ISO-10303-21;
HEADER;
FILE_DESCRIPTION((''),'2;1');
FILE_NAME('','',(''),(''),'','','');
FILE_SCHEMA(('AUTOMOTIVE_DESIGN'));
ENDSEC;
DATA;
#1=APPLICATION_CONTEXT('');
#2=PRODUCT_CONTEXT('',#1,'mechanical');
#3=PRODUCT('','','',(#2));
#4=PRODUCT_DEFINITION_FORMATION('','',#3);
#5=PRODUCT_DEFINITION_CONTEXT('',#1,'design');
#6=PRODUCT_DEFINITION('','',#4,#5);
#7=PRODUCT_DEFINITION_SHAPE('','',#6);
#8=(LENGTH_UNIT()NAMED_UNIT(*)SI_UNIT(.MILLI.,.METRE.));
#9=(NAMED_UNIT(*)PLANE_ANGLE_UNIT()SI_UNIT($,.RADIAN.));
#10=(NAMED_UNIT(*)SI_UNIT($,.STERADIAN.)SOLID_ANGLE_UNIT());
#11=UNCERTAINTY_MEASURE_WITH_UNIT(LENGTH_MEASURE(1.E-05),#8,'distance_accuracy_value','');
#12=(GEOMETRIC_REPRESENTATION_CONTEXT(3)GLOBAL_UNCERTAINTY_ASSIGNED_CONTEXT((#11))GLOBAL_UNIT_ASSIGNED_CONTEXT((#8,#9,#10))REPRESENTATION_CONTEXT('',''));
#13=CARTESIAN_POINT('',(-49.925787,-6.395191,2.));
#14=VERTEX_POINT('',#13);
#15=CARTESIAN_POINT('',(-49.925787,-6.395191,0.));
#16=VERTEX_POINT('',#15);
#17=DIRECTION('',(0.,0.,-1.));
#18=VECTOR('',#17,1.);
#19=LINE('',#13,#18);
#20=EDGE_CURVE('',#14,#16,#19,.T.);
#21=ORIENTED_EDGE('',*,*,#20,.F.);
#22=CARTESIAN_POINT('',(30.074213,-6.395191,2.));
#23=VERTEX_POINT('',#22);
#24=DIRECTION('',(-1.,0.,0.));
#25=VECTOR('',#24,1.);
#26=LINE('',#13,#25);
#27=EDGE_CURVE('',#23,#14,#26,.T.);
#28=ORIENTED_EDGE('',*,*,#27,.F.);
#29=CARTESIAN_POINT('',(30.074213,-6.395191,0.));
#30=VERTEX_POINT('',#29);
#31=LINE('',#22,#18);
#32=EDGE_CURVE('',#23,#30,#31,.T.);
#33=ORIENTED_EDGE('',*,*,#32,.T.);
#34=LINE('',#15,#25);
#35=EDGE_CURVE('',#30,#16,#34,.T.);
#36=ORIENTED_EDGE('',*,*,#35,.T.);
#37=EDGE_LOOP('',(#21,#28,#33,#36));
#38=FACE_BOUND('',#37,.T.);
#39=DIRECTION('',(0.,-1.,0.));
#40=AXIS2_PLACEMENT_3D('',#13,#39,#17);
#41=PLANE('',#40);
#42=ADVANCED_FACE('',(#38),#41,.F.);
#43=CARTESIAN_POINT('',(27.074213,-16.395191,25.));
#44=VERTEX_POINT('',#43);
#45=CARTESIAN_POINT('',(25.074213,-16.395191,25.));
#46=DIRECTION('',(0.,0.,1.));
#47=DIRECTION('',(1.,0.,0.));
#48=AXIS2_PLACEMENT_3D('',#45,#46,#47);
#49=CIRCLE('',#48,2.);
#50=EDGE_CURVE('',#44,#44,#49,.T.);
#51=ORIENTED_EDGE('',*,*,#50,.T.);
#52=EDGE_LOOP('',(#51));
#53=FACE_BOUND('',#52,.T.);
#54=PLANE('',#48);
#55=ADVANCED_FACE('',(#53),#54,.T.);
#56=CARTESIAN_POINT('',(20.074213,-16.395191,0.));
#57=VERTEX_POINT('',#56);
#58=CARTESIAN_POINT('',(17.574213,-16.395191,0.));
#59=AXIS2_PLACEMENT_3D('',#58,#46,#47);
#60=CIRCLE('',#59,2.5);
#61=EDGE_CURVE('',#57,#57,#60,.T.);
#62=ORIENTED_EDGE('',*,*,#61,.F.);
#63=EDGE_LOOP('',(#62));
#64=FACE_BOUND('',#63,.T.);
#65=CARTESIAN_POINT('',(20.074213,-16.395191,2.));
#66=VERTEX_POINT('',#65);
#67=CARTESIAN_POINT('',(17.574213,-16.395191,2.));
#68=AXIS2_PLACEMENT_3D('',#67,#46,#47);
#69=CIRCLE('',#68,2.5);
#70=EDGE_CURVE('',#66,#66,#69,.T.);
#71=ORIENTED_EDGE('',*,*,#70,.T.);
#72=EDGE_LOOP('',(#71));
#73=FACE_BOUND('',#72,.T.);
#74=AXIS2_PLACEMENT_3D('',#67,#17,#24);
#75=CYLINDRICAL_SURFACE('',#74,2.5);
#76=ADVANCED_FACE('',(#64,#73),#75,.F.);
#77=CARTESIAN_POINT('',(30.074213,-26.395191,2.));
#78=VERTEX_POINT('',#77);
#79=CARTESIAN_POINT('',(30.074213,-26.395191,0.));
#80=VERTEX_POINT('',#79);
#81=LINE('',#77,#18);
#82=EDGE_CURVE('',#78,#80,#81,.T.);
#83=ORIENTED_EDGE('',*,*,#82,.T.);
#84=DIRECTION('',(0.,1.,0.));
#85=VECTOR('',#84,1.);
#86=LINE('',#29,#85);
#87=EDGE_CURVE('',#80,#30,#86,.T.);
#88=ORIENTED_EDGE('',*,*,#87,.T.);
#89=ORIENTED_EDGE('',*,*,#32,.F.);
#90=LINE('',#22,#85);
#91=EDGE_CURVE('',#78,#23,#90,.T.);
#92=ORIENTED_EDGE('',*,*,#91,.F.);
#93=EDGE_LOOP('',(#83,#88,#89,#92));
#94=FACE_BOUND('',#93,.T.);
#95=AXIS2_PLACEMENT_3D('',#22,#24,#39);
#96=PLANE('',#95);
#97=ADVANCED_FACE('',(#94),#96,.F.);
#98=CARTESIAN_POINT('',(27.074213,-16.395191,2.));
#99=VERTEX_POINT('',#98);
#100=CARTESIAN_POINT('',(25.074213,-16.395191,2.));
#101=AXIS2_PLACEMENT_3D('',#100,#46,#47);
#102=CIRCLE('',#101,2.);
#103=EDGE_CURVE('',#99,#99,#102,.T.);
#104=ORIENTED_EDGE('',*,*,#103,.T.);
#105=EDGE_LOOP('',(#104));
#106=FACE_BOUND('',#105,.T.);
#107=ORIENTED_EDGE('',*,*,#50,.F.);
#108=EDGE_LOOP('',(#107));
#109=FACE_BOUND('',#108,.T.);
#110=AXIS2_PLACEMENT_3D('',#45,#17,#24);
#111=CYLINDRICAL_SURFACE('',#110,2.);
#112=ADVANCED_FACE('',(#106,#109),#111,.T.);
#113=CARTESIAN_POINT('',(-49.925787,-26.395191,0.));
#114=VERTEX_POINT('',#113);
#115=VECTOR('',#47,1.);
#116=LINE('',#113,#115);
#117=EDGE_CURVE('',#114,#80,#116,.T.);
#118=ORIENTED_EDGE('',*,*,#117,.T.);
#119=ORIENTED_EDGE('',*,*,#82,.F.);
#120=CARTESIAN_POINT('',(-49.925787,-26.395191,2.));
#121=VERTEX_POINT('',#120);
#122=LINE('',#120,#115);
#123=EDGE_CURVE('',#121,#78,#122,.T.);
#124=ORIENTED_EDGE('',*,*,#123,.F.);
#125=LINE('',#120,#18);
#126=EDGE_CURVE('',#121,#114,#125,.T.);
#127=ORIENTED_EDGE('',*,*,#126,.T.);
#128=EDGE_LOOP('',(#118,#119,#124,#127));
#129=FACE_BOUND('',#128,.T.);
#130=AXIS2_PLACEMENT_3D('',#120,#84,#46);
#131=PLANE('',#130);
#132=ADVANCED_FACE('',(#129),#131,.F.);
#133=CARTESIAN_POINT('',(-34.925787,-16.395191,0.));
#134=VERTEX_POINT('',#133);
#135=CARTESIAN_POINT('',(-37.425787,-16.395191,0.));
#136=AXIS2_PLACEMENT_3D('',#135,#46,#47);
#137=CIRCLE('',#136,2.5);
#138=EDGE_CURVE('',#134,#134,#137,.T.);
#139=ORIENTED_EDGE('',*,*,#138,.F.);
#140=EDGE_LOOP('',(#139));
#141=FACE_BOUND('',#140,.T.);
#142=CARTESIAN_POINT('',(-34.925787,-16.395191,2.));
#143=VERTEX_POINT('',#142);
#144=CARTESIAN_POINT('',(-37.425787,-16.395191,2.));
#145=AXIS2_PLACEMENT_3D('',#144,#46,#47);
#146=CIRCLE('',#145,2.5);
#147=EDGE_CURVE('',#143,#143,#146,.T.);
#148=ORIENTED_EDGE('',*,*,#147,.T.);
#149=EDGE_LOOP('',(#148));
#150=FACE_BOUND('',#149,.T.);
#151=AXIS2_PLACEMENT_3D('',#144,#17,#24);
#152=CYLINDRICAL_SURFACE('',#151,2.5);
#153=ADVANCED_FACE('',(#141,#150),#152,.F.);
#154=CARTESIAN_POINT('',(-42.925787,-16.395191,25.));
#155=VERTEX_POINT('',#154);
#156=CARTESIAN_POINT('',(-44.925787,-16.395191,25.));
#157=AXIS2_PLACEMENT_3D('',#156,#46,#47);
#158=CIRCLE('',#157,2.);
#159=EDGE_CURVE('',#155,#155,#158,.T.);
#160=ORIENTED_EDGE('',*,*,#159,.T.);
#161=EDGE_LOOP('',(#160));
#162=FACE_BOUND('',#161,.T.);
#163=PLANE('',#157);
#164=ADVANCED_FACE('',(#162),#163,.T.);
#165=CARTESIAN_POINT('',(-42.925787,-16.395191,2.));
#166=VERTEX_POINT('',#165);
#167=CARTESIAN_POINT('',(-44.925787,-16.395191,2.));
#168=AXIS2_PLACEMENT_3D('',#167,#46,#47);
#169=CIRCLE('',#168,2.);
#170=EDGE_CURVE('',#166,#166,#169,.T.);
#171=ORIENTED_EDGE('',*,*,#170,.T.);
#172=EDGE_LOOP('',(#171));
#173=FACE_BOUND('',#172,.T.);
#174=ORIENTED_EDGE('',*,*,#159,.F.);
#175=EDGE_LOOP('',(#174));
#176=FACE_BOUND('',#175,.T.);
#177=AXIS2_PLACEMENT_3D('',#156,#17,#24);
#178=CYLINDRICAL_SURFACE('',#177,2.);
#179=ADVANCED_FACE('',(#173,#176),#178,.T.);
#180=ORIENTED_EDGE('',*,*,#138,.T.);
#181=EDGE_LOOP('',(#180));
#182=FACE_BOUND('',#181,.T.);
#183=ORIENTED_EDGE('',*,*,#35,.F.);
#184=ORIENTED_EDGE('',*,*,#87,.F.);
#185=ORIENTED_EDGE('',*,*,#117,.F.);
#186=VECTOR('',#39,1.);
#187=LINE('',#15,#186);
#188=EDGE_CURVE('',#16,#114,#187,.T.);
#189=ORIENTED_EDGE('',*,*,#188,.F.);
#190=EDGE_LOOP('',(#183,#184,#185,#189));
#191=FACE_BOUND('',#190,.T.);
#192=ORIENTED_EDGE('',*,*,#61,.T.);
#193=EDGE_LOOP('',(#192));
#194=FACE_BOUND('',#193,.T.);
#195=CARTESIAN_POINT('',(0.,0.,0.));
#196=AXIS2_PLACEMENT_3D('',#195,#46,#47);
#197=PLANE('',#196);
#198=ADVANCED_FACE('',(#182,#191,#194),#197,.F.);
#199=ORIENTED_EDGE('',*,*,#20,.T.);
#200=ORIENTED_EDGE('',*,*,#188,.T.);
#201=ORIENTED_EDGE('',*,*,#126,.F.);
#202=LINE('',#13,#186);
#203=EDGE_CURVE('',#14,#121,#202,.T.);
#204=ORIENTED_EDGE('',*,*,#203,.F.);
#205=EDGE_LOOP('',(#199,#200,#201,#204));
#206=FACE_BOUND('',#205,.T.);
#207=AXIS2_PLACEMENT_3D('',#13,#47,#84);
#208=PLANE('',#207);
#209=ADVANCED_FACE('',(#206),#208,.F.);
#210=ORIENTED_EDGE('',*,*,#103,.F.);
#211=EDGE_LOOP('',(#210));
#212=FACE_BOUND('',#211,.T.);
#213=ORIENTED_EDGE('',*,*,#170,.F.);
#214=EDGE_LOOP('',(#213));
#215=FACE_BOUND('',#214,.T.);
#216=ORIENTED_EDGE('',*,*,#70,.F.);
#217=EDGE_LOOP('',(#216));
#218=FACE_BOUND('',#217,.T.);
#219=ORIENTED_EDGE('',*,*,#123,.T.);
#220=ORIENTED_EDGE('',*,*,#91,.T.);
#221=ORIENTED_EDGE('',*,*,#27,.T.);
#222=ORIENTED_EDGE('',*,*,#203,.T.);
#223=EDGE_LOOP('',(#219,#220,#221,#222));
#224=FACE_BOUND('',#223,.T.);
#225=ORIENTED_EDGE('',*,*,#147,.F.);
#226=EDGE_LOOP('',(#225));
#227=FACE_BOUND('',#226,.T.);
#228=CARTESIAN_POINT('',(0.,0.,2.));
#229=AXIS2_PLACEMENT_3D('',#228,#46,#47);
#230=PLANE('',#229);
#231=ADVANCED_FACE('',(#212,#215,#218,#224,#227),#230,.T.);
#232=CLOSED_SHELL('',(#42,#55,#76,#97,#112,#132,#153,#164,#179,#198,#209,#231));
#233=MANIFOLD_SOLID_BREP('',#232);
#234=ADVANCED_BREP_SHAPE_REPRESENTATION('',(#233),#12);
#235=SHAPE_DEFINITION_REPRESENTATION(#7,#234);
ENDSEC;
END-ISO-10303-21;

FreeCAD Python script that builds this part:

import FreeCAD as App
import Part
import Sketcher
Q = App.Units.Quantity

doc = App.newDocument("Part")
body = doc.addObject("PartDesign::Body", "Body")

# Sketch on XY plane
sketch1 = doc.addObject("Sketcher::SketchObject", "Sketch")
body.addObject(sketch1)
sketch1.AttachmentSupport = (doc.XY_Plane, [""])
sketch1.MapMode = "FlatFace"
sketch1.addGeometry([
    Part.LineSegment(App.Vector(-49.925787, -6.395191, 0), App.Vector(-49.925787, -26.395191, 0)),  # 0
    Part.LineSegment(App.Vector(-49.925787, -26.395191, 0), App.Vector(30.074213, -26.395191, 0)),  # 1
    Part.LineSegment(App.Vector(30.074213, -26.395191, 0), App.Vector(30.074213, -6.395191, 0)),  # 2
    Part.LineSegment(App.Vector(30.074213, -6.395191, 0), App.Vector(-49.925787, -6.395191, 0)),  # 3
    Part.Circle(App.Vector(-37.425787, -16.395191, 0), App.Vector(0, 0, 1), 2.5),  # 4
    Part.Circle(App.Vector(17.574213, -16.395191, 0), App.Vector(0, 0, 1), 2.5),  # 5
], False)
sketch1.addConstraint([
    Sketcher.Constraint("Coincident", 0, 2, 1, 1),
    Sketcher.Constraint("Coincident", 1, 2, 2, 1),
    Sketcher.Constraint("Coincident", 2, 2, 3, 1),
    Sketcher.Constraint("Coincident", 3, 2, 0, 1),
    Sketcher.Constraint("Vertical", 0),
    Sketcher.Constraint("Horizontal", 1),
    Sketcher.Constraint("Vertical", 2),
    Sketcher.Constraint("Horizontal", 3),
    Sketcher.Constraint("Equal", 4, 5),
    Sketcher.Constraint("Horizontal", 4, 3, 5, 3),
    Sketcher.Constraint("Diameter", 4, Q("5 mm")),
    Sketcher.Constraint("DistanceX", 1, 1, 1, 2, Q("80 mm")),
    Sketcher.Constraint("DistanceY", 0, 2, 0, 1, Q("20 mm")),
    Sketcher.Constraint("DistanceX", 4, 3, 5, 3, Q("55 mm")),
    Sketcher.Constraint("DistanceY", 0, 2, 4, 3, Q("10 mm")),
    Sketcher.Constraint("DistanceX", 0, 2, 4, 3, Q("12.5 mm")),
    Sketcher.Constraint("DistanceY", 4, 3, -1, 1, Q("16.395191 mm")),
    Sketcher.Constraint("DistanceX", 4, 3, -1, 1, Q("37.425787 mm")),
])
pad1 = doc.addObject("PartDesign::Pad", "Pad")
body.addObject(pad1)
pad1.Profile = sketch1
pad1.Length = 2

# Sketch on XY plane
sketch2 = doc.addObject("Sketcher::SketchObject", "Sketch001")
body.addObject(sketch2)
sketch2.AttachmentSupport = (doc.XY_Plane, [""])
sketch2.MapMode = "FlatFace"
sketch2.AttachmentOffset = App.Placement(App.Vector(0, 0, 2), App.Rotation())
sketch2.addGeometry([
    Part.Circle(App.Vector(25.074213, -16.395191, 0), App.Vector(0, 0, 1), 2),
    Part.Circle(App.Vector(-44.925787, -16.395191, 0), App.Vector(0, 0, 1), 2),
], False)
sketch2.addConstraint([
    Sketcher.Constraint("Equal", 0, 1),
    Sketcher.Constraint("Horizontal", 0, 3, 1, 3),
    Sketcher.Constraint("Diameter", 0, Q("4 mm")),
    Sketcher.Constraint("DistanceX", 1, 3, 0, 3, Q("70 mm")),
    Sketcher.Constraint("DistanceY", 0, 3, -1, 1, Q("16.395191 mm")),
    Sketcher.Constraint("DistanceX", -1, 1, 0, 3, Q("25.074213 mm")),
])
pad2 = doc.addObject("PartDesign::Pad", "Pad001")
body.addObject(pad2)
pad2.Profile = sketch2
pad2.Length = 23

doc.recompute()
